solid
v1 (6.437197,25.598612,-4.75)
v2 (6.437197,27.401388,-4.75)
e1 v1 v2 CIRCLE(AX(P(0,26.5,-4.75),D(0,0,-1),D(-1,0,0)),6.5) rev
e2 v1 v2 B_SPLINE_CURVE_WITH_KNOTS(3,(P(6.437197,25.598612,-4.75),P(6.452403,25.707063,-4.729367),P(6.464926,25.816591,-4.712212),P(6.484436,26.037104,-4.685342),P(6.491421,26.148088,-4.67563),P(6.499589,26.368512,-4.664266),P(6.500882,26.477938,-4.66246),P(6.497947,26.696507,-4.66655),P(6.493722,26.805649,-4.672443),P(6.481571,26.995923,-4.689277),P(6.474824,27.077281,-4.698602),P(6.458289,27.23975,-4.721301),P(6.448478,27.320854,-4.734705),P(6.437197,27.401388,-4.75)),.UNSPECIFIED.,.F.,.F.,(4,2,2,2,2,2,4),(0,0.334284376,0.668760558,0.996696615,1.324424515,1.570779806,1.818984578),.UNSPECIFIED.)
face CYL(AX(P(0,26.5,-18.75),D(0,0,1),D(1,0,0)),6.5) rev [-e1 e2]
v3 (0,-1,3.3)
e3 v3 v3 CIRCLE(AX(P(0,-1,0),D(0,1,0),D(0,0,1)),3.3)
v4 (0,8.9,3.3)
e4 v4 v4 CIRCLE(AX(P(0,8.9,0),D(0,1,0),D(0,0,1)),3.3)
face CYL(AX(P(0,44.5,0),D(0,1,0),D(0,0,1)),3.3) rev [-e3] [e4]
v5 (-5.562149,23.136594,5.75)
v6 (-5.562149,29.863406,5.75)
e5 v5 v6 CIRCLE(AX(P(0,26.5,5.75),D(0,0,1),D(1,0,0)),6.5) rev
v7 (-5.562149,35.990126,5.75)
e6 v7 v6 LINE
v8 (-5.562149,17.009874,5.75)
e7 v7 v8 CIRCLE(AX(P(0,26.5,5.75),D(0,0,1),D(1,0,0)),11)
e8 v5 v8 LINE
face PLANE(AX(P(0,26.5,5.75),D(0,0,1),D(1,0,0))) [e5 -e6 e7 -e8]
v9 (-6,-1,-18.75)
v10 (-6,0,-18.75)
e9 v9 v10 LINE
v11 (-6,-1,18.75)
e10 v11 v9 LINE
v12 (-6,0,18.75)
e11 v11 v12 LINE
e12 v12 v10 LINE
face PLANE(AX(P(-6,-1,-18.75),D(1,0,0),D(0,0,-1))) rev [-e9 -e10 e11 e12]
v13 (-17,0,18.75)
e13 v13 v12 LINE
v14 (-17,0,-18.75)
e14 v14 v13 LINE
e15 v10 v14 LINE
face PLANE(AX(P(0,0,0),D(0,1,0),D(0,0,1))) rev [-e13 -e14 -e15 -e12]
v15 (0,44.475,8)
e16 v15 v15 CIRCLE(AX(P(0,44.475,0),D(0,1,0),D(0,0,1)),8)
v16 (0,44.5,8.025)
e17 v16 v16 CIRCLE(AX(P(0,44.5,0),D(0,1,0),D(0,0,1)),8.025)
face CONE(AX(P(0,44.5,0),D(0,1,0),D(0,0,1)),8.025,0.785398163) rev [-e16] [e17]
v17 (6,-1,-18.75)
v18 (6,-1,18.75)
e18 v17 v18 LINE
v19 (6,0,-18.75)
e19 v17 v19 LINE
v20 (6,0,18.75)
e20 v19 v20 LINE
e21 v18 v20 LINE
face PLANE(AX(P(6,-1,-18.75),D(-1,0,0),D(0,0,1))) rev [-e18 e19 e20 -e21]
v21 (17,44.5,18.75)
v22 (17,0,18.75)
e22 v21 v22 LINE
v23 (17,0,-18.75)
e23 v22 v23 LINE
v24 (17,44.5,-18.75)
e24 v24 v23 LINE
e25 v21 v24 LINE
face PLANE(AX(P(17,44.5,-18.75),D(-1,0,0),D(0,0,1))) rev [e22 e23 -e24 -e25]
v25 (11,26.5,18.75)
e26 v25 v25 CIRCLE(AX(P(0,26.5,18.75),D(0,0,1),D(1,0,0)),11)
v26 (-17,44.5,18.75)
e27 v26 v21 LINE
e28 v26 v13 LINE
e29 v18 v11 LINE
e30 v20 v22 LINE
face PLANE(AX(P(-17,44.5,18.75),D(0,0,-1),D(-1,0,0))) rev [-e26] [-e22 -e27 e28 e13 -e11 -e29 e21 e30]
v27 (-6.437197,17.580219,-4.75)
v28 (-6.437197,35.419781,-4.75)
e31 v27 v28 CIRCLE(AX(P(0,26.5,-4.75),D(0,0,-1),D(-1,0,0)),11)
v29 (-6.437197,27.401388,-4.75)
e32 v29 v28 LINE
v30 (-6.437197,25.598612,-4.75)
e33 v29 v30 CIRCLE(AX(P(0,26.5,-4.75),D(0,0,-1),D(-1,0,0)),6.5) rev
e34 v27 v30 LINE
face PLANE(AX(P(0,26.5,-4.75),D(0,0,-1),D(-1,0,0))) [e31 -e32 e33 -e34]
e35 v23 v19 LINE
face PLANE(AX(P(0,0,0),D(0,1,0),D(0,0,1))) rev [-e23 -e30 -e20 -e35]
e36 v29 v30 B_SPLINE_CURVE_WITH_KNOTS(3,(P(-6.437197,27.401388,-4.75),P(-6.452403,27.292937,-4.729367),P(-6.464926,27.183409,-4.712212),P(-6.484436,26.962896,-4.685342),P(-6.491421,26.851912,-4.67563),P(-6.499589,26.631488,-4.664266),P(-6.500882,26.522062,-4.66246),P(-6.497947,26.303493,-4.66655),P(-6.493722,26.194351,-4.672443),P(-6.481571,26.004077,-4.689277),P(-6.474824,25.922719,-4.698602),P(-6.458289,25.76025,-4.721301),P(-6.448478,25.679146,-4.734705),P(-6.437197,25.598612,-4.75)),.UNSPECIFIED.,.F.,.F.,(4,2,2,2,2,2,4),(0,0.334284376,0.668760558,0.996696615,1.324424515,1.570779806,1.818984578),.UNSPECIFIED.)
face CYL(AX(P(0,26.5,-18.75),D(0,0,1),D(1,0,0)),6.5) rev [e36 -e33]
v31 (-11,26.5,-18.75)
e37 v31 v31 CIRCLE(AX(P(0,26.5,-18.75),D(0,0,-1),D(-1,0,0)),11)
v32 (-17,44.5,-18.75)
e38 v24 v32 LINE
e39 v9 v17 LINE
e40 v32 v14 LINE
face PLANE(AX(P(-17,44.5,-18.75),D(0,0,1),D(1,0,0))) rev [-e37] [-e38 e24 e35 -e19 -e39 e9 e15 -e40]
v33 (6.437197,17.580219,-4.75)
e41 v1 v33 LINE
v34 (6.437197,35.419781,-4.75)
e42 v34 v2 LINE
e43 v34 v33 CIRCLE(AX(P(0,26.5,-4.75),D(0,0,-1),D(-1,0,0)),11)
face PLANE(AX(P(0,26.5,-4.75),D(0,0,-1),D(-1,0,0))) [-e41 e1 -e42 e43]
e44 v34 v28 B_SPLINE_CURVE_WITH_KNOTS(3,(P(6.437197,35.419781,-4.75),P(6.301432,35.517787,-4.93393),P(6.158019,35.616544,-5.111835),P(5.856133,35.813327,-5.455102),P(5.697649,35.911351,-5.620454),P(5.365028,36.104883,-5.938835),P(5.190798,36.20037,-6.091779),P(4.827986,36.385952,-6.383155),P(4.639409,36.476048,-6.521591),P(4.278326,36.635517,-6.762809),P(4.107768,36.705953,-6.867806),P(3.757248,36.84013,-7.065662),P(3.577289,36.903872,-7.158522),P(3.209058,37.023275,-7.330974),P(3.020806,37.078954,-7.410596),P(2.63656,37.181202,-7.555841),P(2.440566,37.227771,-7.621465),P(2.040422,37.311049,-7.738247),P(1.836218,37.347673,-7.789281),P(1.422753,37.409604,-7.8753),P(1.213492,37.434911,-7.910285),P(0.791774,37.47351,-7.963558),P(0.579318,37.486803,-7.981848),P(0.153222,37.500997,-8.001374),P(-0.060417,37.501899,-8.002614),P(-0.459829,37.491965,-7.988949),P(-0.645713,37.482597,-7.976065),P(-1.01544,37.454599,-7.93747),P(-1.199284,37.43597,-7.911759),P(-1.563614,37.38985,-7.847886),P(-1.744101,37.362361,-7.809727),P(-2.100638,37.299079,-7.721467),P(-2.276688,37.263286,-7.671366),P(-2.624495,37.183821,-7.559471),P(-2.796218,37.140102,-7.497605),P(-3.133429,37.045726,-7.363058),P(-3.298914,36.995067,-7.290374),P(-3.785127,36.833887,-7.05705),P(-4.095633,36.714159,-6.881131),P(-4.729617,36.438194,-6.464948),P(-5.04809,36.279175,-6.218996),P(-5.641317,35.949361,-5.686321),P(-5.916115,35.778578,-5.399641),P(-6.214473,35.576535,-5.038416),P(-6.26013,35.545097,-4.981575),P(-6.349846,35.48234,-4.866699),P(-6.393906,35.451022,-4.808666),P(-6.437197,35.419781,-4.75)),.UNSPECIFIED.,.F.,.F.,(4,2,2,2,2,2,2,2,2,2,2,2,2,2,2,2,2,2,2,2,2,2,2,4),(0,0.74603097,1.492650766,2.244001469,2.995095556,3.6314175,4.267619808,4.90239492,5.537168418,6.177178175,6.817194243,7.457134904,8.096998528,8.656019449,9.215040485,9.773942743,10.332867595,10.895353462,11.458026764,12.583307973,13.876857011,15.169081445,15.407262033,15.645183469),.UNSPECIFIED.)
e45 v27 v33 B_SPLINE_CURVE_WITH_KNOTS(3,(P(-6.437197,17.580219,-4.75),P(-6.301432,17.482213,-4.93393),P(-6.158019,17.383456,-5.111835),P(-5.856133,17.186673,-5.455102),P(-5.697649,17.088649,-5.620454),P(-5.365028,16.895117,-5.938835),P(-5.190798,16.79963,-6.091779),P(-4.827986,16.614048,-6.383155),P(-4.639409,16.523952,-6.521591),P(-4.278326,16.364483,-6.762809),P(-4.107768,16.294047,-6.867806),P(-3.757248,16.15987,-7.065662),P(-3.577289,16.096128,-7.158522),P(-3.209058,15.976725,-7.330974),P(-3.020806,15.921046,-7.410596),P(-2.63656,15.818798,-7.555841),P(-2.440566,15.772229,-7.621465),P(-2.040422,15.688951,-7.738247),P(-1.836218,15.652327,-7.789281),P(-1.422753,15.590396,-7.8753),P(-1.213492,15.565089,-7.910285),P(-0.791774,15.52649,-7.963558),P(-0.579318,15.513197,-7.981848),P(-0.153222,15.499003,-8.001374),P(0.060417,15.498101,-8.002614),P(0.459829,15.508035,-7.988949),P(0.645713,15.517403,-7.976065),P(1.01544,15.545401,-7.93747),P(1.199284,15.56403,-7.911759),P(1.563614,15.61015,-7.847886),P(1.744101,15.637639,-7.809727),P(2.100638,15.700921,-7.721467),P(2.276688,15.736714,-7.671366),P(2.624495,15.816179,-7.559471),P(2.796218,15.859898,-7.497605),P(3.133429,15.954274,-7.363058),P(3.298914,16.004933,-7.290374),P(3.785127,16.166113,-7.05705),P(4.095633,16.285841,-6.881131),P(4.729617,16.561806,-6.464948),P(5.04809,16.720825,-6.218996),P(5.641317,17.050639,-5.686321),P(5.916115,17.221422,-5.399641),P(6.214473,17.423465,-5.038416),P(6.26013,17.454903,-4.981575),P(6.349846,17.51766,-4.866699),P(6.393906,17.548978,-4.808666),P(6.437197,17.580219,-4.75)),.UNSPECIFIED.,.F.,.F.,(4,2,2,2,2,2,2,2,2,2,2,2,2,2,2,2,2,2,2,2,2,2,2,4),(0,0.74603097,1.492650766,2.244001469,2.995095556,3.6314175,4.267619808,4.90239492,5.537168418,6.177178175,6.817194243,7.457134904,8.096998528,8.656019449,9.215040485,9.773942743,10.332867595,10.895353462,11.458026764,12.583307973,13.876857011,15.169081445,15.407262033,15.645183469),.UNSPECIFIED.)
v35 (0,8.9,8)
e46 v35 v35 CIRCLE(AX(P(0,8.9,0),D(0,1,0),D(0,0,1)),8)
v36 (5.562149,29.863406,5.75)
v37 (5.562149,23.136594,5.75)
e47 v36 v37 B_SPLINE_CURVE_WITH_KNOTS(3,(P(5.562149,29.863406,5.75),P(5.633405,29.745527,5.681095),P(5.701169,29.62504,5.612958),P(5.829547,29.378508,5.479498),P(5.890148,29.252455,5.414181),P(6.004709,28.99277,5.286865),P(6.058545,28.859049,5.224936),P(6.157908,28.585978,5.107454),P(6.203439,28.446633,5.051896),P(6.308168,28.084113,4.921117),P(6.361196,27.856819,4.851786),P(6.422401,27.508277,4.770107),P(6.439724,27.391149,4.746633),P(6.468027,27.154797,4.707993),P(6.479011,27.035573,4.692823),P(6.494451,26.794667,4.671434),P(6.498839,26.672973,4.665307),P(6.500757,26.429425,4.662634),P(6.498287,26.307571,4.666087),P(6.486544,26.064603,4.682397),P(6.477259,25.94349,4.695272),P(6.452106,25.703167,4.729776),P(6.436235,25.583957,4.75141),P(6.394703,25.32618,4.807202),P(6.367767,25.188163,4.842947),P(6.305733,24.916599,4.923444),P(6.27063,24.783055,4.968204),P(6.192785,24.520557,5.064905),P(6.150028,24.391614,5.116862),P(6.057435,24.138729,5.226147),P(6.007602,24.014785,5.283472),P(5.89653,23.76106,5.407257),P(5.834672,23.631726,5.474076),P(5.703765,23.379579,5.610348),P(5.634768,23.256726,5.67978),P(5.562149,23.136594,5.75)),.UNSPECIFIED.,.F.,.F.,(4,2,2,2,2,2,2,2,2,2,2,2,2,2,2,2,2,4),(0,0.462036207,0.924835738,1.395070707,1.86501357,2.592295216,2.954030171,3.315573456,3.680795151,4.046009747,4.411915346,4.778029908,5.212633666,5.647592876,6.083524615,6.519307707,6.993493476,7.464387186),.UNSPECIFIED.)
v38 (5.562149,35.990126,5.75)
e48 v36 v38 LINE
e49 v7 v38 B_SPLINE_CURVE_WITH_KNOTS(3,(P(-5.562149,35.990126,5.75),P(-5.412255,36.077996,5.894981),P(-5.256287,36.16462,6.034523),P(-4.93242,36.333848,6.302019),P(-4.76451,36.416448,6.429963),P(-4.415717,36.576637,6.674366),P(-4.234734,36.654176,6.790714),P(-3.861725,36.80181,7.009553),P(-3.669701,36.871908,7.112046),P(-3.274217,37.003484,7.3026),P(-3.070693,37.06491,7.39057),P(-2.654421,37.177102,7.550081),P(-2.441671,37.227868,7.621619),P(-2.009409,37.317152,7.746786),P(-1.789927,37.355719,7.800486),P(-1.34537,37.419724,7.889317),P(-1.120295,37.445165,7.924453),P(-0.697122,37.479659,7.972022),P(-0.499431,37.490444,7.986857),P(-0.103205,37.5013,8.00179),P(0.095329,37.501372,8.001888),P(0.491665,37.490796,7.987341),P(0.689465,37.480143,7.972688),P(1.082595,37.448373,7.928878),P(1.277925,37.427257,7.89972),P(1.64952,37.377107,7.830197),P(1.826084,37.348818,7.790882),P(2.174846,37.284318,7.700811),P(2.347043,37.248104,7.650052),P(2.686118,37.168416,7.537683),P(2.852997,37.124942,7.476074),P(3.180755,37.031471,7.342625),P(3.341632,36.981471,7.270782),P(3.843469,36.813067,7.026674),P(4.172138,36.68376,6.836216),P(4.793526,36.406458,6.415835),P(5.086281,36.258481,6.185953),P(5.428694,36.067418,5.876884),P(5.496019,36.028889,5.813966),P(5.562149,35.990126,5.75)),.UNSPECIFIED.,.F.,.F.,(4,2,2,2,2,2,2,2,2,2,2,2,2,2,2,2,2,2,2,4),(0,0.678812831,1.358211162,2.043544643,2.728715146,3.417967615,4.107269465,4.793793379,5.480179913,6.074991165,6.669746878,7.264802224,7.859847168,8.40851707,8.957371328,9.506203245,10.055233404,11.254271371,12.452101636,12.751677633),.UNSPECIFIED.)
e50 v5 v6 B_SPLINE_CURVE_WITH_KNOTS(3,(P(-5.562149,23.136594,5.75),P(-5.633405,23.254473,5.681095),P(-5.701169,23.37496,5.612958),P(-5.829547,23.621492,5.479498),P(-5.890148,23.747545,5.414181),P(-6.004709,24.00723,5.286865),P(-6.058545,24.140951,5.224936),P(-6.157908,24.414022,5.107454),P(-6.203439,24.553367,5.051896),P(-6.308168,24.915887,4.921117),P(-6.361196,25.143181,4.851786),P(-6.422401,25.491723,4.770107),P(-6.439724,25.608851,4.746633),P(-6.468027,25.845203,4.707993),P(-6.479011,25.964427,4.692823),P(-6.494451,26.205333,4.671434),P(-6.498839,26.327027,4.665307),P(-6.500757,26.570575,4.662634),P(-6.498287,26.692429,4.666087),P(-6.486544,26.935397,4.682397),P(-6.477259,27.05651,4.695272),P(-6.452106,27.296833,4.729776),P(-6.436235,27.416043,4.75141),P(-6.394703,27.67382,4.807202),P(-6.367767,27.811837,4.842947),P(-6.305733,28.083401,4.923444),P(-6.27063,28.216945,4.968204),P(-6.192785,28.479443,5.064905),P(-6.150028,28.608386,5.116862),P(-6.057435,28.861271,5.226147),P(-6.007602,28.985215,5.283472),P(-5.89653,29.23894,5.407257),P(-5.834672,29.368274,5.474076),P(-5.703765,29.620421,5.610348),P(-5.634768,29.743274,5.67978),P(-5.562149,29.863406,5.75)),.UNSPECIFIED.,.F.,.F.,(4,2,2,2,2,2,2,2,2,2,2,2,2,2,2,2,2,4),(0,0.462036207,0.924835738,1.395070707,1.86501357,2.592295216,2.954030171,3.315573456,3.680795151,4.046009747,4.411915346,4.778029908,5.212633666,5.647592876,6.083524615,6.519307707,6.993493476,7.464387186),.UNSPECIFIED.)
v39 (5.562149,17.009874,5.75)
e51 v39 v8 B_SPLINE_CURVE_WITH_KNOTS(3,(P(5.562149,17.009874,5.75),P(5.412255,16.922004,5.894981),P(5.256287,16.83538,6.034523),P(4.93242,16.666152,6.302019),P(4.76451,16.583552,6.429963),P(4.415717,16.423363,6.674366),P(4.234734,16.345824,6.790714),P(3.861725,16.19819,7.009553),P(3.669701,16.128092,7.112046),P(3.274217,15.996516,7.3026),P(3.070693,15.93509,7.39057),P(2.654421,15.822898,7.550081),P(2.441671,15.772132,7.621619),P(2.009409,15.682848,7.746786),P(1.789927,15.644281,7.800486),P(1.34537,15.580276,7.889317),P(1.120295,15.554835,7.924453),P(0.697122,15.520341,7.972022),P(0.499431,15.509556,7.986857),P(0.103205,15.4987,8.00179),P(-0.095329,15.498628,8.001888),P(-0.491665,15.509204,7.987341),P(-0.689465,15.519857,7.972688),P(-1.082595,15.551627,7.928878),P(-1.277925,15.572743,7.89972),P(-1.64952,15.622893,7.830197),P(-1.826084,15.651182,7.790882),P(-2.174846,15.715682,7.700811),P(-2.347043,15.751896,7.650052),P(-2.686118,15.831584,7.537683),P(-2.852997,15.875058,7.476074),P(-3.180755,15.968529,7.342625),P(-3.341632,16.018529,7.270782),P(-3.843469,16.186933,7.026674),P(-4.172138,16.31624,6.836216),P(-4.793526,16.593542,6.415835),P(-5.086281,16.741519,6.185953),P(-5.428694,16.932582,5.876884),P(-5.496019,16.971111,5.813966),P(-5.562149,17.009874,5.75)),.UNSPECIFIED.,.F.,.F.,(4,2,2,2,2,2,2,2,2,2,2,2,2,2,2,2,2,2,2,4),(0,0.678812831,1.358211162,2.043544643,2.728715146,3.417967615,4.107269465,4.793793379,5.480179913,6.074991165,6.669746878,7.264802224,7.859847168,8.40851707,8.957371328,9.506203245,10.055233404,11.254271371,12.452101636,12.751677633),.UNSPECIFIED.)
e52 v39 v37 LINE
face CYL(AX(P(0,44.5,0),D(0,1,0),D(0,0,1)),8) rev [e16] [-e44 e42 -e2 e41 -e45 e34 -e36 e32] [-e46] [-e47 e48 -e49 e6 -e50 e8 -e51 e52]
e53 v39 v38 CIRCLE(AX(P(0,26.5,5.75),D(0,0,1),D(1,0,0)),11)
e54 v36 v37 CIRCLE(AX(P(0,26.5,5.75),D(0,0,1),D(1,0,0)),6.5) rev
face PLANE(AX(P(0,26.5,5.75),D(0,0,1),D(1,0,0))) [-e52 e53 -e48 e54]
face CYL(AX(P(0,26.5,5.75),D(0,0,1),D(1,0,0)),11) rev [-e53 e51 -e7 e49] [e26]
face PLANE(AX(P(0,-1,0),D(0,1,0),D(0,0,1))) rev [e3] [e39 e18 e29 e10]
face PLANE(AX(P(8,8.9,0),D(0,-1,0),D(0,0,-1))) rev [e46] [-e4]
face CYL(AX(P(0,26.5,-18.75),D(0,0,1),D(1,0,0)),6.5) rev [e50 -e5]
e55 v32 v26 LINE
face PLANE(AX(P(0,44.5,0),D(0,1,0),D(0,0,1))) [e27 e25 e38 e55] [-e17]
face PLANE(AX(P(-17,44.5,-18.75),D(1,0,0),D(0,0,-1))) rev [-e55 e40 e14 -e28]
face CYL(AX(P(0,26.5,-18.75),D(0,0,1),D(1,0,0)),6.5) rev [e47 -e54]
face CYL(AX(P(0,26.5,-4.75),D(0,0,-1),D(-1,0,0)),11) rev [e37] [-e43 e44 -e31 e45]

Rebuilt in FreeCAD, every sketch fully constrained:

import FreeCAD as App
import Part
import Sketcher
Q = App.Units.Quantity

doc = App.newDocument("Part")
body = doc.addObject("PartDesign::Body", "Body")

sketch1 = doc.addObject("Sketcher::SketchObject", "Sketch")
body.addObject(sketch1)
sketch1.AttachmentSupport = (doc.XZ_Plane, [""])
sketch1.MapMode = "FlatFace"
sketch1.addGeometry([
    Part.LineSegment(App.Vector(-17, -19, 0), App.Vector(-17, 19, 0)),
    Part.LineSegment(App.Vector(-17, 19, 0), App.Vector(17, 19, 0)),
    Part.LineSegment(App.Vector(17, 19, 0), App.Vector(17, -19, 0)),
    Part.LineSegment(App.Vector(17, -19, 0), App.Vector(-17, -19, 0)),
], False)
sketch1.addConstraint([
    Sketcher.Constraint("Coincident", 0, 2, 1, 1),
    Sketcher.Constraint("Coincident", 1, 2, 2, 1),
    Sketcher.Constraint("Coincident", 2, 2, 3, 1),
    Sketcher.Constraint("Coincident", 3, 2, 0, 1),
    Sketcher.Constraint("Vertical", 0),
    Sketcher.Constraint("Horizontal", 1),
    Sketcher.Constraint("Vertical", 2),
    Sketcher.Constraint("Horizontal", 3),
    Sketcher.Constraint("Symmetric", 0, 2, 2, 2, -1, 1),
    Sketcher.Constraint("DistanceX", 1, 1, 1, 2, Q("34 mm")),
    Sketcher.Constraint("DistanceY", 0, 1, 0, 2, Q("37.5 mm")),
])
pad1 = doc.addObject("PartDesign::Pad", "Pad")
body.addObject(pad1)
pad1.Profile = sketch1
pad1.Length = 44.5
pad1.Reversed = True

sketch2 = doc.addObject("Sketcher::SketchObject", "Sketch001")
body.addObject(sketch2)
sketch2.AttachmentSupport = (doc.XZ_Plane, [""])
sketch2.MapMode = "FlatFace"
sketch2.addGeometry([
    Part.LineSegment(App.Vector(-6, 19, 0), App.Vector(-6, -19, 0)),
    Part.LineSegment(App.Vector(-6, -19, 0), App.Vector(6, -19, 0)),
    Part.LineSegment(App.Vector(6, -19, 0), App.Vector(6, 19, 0)),
    Part.LineSegment(App.Vector(6, 19, 0), App.Vector(-6, 19, 0)),
], False)
sketch2.addConstraint([
    Sketcher.Constraint("Coincident", 0, 2, 1, 1),
    Sketcher.Constraint("Coincident", 1, 2, 2, 1),
    Sketcher.Constraint("Coincident", 2, 2, 3, 1),
    Sketcher.Constraint("Coincident", 3, 2, 0, 1),
    Sketcher.Constraint("Vertical", 0),
    Sketcher.Constraint("Horizontal", 1),
    Sketcher.Constraint("Vertical", 2),
    Sketcher.Constraint("Horizontal", 3),
    Sketcher.Constraint("Symmetric", 0, 2, 2, 2, -1, 1),
    Sketcher.Constraint("DistanceX", 1, 1, 1, 2, Q("12 mm")),
    Sketcher.Constraint("DistanceY", 0, 2, 0, 1, Q("37.5 mm")),
])
pad2 = doc.addObject("PartDesign::Pad", "Pad001")
body.addObject(pad2)
pad2.Profile = sketch2
pad2.Length = 1

sketch3 = doc.addObject("Sketcher::SketchObject", "Sketch002")
body.addObject(sketch3)
sketch3.AttachmentSupport = (doc.XY_Plane, [""])
sketch3.MapMode = "FlatFace"
sketch3.AttachmentOffset = App.Placement(App.Vector(0, 0, 18.75), App.Rotation())
sketch3.addGeometry(Part.Circle(App.Vector(0, 26, 0), App.Vector(0, 0, 1), 6), False)
sketch3.addConstraint([
    Sketcher.Constraint("PointOnObject", 0, 3, -2),
    Sketcher.Constraint("Diameter", 0, Q("13 mm")),
    Sketcher.Constraint("DistanceY", -1, 1, 0, 3, Q("26.5 mm")),
])
pocket1 = doc.addObject("PartDesign::Pocket", "Pocket")
body.addObject(pocket1)
pocket1.Profile = sketch3
pocket1.Type = "ThroughAll"

sketch4 = doc.addObject("Sketcher::SketchObject", "Sketch003")
body.addObject(sketch4)
sketch4.AttachmentSupport = (doc.XY_Plane, [""])
sketch4.MapMode = "FlatFace"
sketch4.AttachmentOffset = App.Placement(App.Vector(0, 0, 18.75), App.Rotation())
sketch4.addGeometry(Part.Circle(App.Vector(0, 26, 0), App.Vector(0, 0, 1), 11), False)
sketch4.addConstraint([
    Sketcher.Constraint("PointOnObject", 0, 3, -2),
    Sketcher.Constraint("Diameter", 0, Q("22 mm")),
    Sketcher.Constraint("DistanceY", -1, 1, 0, 3, Q("26.5 mm")),
])
pocket2 = doc.addObject("PartDesign::Pocket", "Pocket001")
body.addObject(pocket2)
pocket2.Profile = sketch4
pocket2.Length = 13

sketch5 = doc.addObject("Sketcher::SketchObject", "Sketch004")
body.addObject(sketch5)
sketch5.AttachmentSupport = (doc.XY_Plane, [""])
sketch5.MapMode = "FlatFace"
sketch5.AttachmentOffset = App.Placement(App.Vector(0, 0, -4.75), App.Rotation())
sketch5.addGeometry(Part.Circle(App.Vector(0, 26, 0), App.Vector(0, 0, 1), 11), False)
sketch5.addConstraint([
    Sketcher.Constraint("PointOnObject", 0, 3, -2),
    Sketcher.Constraint("Diameter", 0, Q("22 mm")),
    Sketcher.Constraint("DistanceY", -1, 1, 0, 3, Q("26.5 mm")),
])
pocket3 = doc.addObject("PartDesign::Pocket", "Pocket002")
body.addObject(pocket3)
pocket3.Profile = sketch5
pocket3.Length = 14

sketch6 = doc.addObject("Sketcher::SketchObject", "Sketch005")
body.addObject(sketch6)
sketch6.AttachmentSupport = (doc.YZ_Plane, [""])
sketch6.MapMode = "FlatFace"
sketch6.addGeometry([
    Part.LineSegment(App.Vector(-1, 0, 0), App.Vector(44.5, 0, 0)),
    Part.LineSegment(App.Vector(44.5, 0, 0), App.Vector(44.5, 8.025, 0)),
    Part.LineSegment(App.Vector(44.5, 8.025, 0), App.Vector(44.475, 8, 0)),
    Part.LineSegment(App.Vector(44.475, 8, 0), App.Vector(8.9, 8, 0)),
    Part.LineSegment(App.Vector(8.9, 8, 0), App.Vector(8.9, 3.3, 0)),
    Part.LineSegment(App.Vector(8.9, 3.3, 0), App.Vector(-1, 3.3, 0)),
    Part.LineSegment(App.Vector(-1, 3.3, 0), App.Vector(-1, 0, 0)),
], False)
sketch6.addConstraint([
    Sketcher.Constraint("Coincident", 0, 2, 1, 1),
    Sketcher.Constraint("Coincident", 1, 2, 2, 1),
    Sketcher.Constraint("Coincident", 2, 2, 3, 1),
    Sketcher.Constraint("Coincident", 3, 2, 4, 1),
    Sketcher.Constraint("Coincident", 4, 2, 5, 1),
    Sketcher.Constraint("Coincident", 5, 2, 6, 1),
    Sketcher.Constraint("Coincident", 6, 2, 0, 1),
    Sketcher.Constraint("Horizontal", 0),
    Sketcher.Constraint("Vertical", 1),
    Sketcher.Constraint("Horizontal", 3),
    Sketcher.Constraint("Vertical", 4),
    Sketcher.Constraint("Horizontal", 5),
    Sketcher.Constraint("Vertical", 6),
    Sketcher.Constraint("PointOnObject", 0, 2, -1),
    Sketcher.Constraint("Angle", 2, Q("-135 deg")),
    Sketcher.Constraint("DistanceX", 0, 1, 0, 2, Q("45.5 mm")),
    Sketcher.Constraint("DistanceX", 5, 2, 5, 1, Q("9.9 mm")),
    Sketcher.Constraint("DistanceY", 4, 2, 4, 1, Q("4.7 mm")),
    Sketcher.Constraint("DistanceY", 6, 2, 6, 1, Q("3.3 mm")),
    Sketcher.Constraint("DistanceX", 5, 2, -1, 1, Q("1 mm")),
    Sketcher.Constraint("DistanceX", 3, 2, 3, 1, Q("35.575 mm")),
])
groove = doc.addObject("PartDesign::Groove", "Groove")
body.addObject(groove)
groove.Profile = sketch6
groove.ReferenceAxis = (sketch6, ["H_Axis"])
groove.Angle = 360

doc.recompute()
